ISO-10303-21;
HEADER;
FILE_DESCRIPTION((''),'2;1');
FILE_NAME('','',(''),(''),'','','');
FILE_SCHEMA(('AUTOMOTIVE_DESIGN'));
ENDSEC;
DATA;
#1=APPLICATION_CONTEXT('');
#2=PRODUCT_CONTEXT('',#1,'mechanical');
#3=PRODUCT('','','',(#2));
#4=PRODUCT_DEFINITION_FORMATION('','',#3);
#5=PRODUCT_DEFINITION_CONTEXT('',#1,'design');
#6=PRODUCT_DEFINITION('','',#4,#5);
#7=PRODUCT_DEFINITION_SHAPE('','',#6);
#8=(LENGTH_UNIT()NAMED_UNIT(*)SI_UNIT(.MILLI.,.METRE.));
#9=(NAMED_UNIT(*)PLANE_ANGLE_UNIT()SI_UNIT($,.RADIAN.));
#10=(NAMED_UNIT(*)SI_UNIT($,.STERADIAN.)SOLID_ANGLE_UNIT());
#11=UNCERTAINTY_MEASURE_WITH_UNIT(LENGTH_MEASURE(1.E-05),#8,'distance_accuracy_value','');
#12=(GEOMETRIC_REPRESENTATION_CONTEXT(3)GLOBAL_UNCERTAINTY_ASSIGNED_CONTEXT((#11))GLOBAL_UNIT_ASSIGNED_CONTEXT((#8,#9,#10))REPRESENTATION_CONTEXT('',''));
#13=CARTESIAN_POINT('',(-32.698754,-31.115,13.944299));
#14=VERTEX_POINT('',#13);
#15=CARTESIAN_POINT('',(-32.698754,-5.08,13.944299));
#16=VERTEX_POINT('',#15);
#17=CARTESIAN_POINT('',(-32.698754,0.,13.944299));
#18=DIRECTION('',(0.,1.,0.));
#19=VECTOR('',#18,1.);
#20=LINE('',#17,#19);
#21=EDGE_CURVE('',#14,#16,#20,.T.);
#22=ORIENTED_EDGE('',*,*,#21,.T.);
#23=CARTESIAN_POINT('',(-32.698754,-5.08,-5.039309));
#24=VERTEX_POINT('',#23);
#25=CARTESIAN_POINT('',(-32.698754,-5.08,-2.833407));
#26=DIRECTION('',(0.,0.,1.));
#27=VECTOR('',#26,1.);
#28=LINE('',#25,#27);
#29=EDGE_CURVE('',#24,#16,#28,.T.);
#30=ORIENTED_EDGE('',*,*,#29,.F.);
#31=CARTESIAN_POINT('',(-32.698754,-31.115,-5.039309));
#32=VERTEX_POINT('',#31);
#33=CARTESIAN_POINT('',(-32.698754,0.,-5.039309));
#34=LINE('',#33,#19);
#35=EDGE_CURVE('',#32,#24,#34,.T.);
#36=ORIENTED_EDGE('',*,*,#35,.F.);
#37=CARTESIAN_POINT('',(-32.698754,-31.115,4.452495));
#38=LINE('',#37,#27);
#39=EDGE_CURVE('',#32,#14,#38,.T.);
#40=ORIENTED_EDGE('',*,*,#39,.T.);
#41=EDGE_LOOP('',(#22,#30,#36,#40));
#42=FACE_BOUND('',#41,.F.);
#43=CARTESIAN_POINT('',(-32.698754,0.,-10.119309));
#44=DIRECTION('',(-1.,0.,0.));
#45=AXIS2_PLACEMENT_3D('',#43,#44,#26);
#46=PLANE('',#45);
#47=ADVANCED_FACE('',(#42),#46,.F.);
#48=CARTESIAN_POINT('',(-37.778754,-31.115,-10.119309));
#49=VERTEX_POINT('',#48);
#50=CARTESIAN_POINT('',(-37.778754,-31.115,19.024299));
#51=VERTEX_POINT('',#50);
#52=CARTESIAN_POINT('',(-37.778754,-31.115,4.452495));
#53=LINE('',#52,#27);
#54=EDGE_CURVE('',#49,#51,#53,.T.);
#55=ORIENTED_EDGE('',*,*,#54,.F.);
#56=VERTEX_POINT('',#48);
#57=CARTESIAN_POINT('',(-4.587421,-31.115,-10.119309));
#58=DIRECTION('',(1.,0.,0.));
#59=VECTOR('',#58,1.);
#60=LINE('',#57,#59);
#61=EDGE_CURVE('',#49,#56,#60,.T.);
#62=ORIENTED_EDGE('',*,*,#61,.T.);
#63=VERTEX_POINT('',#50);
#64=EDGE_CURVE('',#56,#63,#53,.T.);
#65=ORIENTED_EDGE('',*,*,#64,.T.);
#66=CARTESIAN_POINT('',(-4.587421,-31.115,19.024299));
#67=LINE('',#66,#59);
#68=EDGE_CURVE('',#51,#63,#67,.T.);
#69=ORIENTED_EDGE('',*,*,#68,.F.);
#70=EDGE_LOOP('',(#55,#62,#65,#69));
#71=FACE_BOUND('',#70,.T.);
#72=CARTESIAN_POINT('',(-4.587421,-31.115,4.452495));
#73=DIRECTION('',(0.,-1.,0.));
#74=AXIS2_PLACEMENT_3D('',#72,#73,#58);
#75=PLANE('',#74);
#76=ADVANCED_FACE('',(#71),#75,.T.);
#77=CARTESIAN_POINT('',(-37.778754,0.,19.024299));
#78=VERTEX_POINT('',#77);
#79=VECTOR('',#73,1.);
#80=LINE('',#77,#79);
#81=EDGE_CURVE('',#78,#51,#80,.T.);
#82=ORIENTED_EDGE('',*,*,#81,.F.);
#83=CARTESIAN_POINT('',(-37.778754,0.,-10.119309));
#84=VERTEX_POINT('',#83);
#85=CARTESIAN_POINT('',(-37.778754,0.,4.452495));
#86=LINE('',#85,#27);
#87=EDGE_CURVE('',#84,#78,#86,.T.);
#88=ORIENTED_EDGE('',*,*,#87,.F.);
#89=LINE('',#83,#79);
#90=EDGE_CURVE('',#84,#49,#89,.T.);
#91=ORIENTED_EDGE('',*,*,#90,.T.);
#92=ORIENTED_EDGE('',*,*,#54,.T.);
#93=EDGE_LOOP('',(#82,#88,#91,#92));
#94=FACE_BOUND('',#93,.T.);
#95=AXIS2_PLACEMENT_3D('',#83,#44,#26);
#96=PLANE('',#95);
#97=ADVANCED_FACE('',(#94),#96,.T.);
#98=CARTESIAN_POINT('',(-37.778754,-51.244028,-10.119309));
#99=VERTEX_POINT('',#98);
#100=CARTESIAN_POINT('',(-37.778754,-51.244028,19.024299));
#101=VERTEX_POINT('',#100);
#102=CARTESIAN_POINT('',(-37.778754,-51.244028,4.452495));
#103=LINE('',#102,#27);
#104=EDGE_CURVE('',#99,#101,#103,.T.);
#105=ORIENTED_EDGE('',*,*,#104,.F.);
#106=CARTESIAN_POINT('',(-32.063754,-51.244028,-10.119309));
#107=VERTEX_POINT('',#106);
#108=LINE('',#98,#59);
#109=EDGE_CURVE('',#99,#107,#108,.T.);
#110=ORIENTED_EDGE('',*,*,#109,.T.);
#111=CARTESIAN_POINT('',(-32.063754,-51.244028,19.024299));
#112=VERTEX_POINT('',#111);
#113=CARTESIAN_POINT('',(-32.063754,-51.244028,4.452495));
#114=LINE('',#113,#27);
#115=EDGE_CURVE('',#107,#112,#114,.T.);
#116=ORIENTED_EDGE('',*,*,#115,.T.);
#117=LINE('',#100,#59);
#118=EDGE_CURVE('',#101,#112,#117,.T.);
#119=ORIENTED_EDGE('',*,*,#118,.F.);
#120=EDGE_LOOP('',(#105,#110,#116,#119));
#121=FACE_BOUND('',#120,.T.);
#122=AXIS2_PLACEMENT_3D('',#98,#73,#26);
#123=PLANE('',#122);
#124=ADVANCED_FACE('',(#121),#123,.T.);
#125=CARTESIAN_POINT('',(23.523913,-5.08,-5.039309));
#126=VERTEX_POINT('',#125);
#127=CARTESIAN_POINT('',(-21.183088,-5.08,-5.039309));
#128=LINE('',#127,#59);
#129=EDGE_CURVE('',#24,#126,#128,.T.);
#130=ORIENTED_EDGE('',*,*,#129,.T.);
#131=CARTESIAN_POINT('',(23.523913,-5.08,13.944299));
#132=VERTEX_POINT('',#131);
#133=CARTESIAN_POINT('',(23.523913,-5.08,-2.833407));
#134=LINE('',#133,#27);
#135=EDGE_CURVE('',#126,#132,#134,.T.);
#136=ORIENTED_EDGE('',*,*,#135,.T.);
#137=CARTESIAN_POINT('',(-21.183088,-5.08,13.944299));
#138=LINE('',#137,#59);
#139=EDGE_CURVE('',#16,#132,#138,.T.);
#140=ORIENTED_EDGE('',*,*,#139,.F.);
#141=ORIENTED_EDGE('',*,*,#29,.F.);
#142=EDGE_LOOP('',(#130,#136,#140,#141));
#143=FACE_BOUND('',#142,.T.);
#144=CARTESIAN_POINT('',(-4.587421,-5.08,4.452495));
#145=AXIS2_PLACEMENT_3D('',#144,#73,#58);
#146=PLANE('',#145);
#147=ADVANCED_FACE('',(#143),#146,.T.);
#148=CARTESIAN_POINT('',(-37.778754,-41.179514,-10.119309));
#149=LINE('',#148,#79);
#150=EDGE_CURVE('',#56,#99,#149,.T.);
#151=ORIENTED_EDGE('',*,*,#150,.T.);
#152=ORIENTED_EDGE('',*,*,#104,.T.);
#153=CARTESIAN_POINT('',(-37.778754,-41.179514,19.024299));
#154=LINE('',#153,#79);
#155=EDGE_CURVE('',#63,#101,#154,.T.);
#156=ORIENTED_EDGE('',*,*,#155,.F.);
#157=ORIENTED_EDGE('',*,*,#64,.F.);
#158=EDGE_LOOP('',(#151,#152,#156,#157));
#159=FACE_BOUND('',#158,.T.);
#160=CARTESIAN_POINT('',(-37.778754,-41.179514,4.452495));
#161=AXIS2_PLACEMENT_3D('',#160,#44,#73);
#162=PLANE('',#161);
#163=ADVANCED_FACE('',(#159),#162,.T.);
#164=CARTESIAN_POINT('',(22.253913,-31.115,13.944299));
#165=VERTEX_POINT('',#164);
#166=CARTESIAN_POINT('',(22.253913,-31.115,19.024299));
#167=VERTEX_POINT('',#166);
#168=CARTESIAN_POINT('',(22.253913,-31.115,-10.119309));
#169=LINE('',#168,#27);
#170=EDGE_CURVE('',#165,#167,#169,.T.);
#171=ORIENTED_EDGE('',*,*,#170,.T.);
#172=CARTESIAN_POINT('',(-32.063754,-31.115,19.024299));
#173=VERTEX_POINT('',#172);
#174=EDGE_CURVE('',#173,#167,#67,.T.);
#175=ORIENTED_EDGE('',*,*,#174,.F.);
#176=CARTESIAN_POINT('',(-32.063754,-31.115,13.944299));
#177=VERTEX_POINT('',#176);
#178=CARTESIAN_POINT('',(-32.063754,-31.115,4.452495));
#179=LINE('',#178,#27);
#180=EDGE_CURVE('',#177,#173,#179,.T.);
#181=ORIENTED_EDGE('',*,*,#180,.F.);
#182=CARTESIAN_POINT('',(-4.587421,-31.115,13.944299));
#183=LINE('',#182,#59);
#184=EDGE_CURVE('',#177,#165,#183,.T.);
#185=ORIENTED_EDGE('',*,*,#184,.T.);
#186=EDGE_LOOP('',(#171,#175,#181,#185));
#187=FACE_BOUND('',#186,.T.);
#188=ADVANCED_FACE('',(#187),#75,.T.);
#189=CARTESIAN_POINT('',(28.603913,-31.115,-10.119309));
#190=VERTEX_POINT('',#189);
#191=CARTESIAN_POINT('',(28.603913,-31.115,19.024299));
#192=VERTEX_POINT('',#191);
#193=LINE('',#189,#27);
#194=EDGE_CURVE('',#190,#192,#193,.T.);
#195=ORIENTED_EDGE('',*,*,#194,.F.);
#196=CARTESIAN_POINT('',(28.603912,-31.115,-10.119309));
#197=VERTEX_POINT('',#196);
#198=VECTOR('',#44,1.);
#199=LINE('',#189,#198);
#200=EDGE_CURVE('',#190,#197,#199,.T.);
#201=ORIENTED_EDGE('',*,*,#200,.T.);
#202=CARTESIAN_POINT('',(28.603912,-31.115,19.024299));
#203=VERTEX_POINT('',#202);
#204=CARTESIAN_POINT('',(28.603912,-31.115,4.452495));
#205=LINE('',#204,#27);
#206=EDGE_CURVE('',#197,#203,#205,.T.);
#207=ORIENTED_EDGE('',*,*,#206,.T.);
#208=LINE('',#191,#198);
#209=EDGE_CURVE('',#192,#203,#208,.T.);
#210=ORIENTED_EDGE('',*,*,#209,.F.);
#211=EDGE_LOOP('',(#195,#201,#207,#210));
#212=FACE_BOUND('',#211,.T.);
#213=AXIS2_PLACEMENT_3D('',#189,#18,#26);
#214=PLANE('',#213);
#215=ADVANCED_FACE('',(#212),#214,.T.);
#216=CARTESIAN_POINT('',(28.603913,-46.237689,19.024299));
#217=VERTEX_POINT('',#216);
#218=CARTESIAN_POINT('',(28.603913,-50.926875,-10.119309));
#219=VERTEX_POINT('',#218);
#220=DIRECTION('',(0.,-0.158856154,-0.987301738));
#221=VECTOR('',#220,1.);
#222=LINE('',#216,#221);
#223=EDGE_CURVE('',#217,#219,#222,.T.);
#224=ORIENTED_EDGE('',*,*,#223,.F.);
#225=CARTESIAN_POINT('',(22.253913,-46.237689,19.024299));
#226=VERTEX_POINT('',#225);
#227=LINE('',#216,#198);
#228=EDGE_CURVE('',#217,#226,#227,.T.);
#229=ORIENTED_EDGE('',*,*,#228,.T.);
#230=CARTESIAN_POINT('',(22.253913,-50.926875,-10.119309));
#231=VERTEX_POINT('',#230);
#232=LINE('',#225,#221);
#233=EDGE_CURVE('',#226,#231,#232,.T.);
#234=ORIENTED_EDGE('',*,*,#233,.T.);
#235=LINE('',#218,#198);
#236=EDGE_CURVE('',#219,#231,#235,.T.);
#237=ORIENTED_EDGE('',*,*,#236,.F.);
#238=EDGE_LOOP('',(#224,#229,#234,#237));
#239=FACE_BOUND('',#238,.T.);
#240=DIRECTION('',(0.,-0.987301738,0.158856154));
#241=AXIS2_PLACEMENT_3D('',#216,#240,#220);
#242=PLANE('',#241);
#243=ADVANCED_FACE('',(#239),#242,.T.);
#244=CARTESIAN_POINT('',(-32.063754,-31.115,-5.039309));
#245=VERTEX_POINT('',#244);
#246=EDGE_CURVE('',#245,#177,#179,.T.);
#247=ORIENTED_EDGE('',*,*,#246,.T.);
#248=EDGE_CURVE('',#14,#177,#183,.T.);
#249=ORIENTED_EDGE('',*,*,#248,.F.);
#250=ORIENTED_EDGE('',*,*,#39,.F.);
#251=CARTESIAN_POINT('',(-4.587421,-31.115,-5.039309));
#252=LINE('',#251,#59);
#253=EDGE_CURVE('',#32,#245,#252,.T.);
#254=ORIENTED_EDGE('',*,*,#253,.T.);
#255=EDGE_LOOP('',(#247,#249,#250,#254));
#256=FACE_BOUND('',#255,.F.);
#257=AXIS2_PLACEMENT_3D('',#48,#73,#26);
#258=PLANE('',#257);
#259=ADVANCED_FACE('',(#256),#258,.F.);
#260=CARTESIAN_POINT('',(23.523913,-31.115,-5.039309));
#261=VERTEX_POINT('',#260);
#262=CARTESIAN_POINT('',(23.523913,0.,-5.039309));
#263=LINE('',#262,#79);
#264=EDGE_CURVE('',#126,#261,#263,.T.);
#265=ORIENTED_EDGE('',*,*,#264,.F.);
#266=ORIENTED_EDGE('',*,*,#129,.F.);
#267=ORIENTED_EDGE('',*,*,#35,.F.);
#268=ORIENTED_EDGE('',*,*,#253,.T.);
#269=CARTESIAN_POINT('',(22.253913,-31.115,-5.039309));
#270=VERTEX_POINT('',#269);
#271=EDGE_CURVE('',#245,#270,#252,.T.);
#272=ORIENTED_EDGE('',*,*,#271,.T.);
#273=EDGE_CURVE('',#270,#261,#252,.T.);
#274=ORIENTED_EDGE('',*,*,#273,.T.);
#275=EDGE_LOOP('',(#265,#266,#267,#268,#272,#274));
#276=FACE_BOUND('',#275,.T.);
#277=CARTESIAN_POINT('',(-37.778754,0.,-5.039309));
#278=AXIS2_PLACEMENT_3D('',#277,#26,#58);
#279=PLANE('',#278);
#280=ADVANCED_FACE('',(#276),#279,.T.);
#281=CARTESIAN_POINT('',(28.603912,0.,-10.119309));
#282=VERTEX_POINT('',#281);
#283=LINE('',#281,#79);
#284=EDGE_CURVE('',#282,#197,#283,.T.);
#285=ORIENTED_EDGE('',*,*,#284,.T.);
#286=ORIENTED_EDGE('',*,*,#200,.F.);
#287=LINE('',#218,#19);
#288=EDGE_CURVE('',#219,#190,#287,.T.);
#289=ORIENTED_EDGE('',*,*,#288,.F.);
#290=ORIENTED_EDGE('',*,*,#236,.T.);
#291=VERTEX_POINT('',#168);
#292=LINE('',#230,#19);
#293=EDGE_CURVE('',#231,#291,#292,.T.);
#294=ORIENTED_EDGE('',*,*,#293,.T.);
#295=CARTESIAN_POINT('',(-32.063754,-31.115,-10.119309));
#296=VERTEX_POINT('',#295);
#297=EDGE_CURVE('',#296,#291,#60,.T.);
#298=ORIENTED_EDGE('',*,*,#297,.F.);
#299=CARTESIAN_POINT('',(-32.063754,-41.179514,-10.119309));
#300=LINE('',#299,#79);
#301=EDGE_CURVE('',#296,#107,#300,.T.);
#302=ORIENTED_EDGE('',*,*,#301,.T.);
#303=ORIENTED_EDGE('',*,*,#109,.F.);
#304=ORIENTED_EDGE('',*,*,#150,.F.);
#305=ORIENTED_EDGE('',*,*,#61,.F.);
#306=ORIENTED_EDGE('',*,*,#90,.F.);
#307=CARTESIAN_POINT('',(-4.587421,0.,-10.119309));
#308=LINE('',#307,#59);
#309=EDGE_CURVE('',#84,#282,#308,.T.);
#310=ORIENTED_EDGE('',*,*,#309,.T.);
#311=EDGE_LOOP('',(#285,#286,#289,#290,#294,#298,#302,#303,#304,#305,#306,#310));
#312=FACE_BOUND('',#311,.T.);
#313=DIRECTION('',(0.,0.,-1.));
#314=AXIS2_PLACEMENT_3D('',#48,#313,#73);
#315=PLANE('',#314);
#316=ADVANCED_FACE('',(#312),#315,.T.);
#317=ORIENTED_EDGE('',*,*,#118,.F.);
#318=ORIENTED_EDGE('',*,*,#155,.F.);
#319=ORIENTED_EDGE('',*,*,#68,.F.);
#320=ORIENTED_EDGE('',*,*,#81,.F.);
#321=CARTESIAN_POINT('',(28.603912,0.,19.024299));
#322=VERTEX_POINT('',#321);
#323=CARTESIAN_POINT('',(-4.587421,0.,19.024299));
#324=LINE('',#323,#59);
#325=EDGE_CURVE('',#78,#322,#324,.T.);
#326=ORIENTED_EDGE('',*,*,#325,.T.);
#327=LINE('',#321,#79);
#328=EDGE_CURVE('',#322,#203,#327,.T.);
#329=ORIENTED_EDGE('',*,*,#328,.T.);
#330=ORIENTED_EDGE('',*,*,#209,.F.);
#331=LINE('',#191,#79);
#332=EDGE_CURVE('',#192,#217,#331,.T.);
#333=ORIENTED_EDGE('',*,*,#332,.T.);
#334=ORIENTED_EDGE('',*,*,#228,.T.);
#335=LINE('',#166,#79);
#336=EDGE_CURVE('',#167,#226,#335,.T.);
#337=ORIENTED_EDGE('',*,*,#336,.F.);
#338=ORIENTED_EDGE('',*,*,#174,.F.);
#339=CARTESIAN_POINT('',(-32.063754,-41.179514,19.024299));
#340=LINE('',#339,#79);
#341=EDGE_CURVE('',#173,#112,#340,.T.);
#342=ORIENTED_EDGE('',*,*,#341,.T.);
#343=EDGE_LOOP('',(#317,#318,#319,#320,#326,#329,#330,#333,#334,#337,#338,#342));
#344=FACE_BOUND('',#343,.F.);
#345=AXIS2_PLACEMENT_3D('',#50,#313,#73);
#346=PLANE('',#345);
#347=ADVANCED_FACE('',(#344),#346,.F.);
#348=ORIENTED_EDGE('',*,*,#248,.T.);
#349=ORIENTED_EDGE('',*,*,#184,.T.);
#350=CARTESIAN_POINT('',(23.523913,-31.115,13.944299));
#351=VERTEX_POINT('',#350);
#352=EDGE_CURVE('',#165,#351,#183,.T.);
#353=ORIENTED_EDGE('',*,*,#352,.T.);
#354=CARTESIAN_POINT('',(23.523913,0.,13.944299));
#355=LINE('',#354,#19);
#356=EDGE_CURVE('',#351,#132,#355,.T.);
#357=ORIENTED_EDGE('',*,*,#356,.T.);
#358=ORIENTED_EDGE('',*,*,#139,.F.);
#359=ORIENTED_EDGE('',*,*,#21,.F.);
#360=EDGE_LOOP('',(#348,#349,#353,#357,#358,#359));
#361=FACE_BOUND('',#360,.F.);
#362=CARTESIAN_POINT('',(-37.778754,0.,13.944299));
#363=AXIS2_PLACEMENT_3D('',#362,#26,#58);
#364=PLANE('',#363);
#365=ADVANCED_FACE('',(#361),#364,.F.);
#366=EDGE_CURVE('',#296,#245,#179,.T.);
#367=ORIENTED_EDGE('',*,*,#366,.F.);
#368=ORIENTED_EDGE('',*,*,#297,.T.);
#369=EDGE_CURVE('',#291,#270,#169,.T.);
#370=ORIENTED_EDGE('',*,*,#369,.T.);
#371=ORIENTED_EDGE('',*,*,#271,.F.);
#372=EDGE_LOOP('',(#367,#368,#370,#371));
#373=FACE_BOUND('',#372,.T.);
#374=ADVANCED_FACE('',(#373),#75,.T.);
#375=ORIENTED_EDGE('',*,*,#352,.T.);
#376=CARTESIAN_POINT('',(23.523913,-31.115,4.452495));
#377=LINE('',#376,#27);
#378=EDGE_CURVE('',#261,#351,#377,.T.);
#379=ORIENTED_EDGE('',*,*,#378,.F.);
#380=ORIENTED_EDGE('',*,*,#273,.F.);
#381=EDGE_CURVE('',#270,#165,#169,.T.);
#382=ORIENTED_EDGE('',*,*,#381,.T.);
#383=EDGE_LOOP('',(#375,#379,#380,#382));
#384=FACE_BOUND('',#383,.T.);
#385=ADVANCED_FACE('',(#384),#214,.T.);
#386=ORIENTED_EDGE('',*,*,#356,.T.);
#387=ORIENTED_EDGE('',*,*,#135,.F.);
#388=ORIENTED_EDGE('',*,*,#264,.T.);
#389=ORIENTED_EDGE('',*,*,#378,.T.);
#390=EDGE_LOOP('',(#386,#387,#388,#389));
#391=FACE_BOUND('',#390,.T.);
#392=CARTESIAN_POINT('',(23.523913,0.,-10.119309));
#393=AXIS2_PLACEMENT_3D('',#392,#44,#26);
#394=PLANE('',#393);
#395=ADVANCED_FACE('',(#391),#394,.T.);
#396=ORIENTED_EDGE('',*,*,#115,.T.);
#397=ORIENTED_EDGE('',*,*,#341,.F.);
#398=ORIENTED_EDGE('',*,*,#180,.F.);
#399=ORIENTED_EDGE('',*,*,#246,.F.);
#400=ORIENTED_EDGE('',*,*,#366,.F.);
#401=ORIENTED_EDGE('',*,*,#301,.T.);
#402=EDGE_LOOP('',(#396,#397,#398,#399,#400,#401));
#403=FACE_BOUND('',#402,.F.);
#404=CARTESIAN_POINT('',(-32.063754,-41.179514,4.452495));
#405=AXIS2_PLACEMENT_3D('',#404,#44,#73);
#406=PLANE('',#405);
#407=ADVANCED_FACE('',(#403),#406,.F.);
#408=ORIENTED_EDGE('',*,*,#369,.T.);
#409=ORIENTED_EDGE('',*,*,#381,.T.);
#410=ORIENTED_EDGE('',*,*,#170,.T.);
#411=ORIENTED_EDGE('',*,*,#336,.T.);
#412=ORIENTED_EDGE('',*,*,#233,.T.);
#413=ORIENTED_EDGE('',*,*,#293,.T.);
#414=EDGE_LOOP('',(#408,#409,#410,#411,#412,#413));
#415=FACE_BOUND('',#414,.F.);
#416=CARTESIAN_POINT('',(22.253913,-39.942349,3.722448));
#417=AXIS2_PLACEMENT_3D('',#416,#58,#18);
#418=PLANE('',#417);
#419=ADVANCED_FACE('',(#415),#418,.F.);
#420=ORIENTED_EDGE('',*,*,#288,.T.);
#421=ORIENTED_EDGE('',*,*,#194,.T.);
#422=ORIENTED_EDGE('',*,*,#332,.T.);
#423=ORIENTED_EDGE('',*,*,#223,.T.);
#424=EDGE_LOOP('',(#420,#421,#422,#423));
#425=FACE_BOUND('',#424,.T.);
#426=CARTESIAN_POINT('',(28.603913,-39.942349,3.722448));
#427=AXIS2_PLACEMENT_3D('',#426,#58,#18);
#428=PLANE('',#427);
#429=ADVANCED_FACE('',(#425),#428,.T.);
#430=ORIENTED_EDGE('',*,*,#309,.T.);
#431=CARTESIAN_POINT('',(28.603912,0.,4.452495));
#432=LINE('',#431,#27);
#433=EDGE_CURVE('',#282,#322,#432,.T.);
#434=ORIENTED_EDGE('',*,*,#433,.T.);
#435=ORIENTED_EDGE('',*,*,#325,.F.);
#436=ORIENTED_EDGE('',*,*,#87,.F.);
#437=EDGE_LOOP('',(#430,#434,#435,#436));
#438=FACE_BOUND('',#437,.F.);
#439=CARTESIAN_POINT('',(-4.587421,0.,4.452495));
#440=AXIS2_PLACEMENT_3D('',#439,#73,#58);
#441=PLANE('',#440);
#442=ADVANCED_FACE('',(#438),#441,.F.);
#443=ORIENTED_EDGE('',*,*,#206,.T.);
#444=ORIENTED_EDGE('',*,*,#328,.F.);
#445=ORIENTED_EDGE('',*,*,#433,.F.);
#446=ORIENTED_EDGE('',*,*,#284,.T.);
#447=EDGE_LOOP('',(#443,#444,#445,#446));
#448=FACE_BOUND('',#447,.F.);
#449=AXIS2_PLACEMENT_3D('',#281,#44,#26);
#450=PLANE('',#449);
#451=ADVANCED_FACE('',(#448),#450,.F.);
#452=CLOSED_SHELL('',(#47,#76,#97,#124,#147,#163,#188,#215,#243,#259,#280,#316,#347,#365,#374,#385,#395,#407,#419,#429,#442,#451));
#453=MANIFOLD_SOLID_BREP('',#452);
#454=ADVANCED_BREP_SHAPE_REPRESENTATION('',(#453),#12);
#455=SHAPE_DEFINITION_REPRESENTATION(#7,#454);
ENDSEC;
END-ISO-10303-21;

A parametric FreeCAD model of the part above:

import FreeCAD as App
import Part
import Sketcher

V = App.Vector
Q = App.Units.Quantity


def faces_at(feature, points):
    """Names of the faces that lie closest to the given points."""
    faces = feature.Shape.Faces
    near = lambda p: min(range(len(faces)), key=lambda i: faces[i].distToShape(Part.Vertex(*p))[0])
    return sorted({f"Face{near(p) + 1}" for p in points})

doc = App.newDocument("Part")
body = doc.addObject("PartDesign::Body", "Body")

# Sketch on XZ plane
sketch1 = body.newObject("Sketcher::SketchObject", "Sketch")
sketch1.AttachmentSupport = (doc.getObject("XZ_Plane"), [""])
sketch1.MapMode = "FlatFace"
sketch1.addGeometry([
    Part.LineSegment(V(-38, 19, 0), V(-38, -10, 0)),
    Part.LineSegment(V(-38, -10, 0), V(29, -10, 0)),
    Part.LineSegment(V(29, -10, 0), V(29, 19, 0)),
    Part.LineSegment(V(29, 19, 0), V(-38, 19, 0)),
], False)
sketch1.addConstraint([
    Sketcher.Constraint("Coincident", 0, 2, 1, 1),
    Sketcher.Constraint("Coincident", 1, 2, 2, 1),
    Sketcher.Constraint("Coincident", 2, 2, 3, 1),
    Sketcher.Constraint("Coincident", 3, 2, 0, 1),
    Sketcher.Constraint("Vertical", 0),
    Sketcher.Constraint("Horizontal", 1),
    Sketcher.Constraint("Vertical", 2),
    Sketcher.Constraint("Horizontal", 3),
    Sketcher.Constraint("DistanceY", 0, 2, 0, 1, Q("29.143608 mm")),
    Sketcher.Constraint("DistanceY", -1, 1, 2, 2, Q("19.024299 mm")),
    Sketcher.Constraint("DistanceX", 1, 1, 1, 2, Q("66.382667 mm")),
    Sketcher.Constraint("DistanceX", 0, 2, -1, 1, Q("37.778754 mm")),
])
pad1 = body.newObject("PartDesign::Pad", "Pad")
pad1.Profile = sketch1
pad1.Length = Q("1.225 in")
doc.recompute()

thickness = body.newObject("PartDesign::Thickness", "Thickness")
thickness.Base = (pad1, faces_at(pad1, [(-4.587, -31.115, 4.452)]))
thickness.Value = Q("0.2 in")
thickness.Reversed = True
thickness.Join = "Arc"

# Sketch on YZ plane
sketch2 = body.newObject("Sketcher::SketchObject", "Sketch001")
sketch2.AttachmentSupport = (doc.getObject("YZ_Plane"), [""])
sketch2.MapMode = "FlatFace"
sketch2.AttachmentOffset = App.Placement(V(0, 0, 28.603913), App.Rotation())
sketch2.addGeometry([
    Part.LineSegment(V(-51, -10, 0), V(-31, -10, 0)),
    Part.LineSegment(V(-31, -10, 0), V(-31, 19, 0)),
    Part.LineSegment(V(-31, 19, 0), V(-46, 19, 0)),
    Part.LineSegment(V(-46, 19, 0), V(-51, -10, 0)),
], False)
sketch2.addConstraint([
    Sketcher.Constraint("Coincident", 0, 2, 1, 1),
    Sketcher.Constraint("Coincident", 1, 2, 2, 1),
    Sketcher.Constraint("Coincident", 2, 2, 3, 1),
    Sketcher.Constraint("Coincident", 3, 2, 0, 1),
    Sketcher.Constraint("Horizontal", 0),
    Sketcher.Constraint("Vertical", 1),
    Sketcher.Constraint("Horizontal", 2),
    Sketcher.Constraint("DistanceX", 0, 2, -1, 1, Q("1.225 in")),
    Sketcher.Constraint("DistanceX", 2, 2, 2, 1, Q("15.122689 mm")),
    Sketcher.Constraint("DistanceY", 1, 1, 1, 2, Q("29.143608 mm")),
    Sketcher.Constraint("DistanceY", -1, 1, 1, 2, Q("19.024299 mm")),
    Sketcher.Constraint("Distance", 3, Q("29.518441 mm")),
])
pad2 = body.newObject("PartDesign::Pad", "Pad001")
pad2.Profile = sketch2
pad2.Length = Q("0.25 in")
pad2.Reversed = True

# Sketch on YZ plane
sketch3 = body.newObject("Sketcher::SketchObject", "Sketch002")
sketch3.AttachmentSupport = (doc.getObject("YZ_Plane"), [""])
sketch3.MapMode = "FlatFace"
sketch3.AttachmentOffset = App.Placement(V(0, 0, -37.778754), App.Rotation())
sketch3.addGeometry([
    Part.LineSegment(V(-31, 19, 0), V(-31, -10, 0)),
    Part.LineSegment(V(-31, -10, 0), V(-51, -10, 0)),
    Part.LineSegment(V(-51, -10, 0), V(-51, 19, 0)),
    Part.LineSegment(V(-51, 19, 0), V(-31, 19, 0)),
], False)
sketch3.addConstraint([
    Sketcher.Constraint("Coincident", 0, 2, 1, 1),
    Sketcher.Constraint("Coincident", 1, 2, 2, 1),
    Sketcher.Constraint("Coincident", 2, 2, 3, 1),
    Sketcher.Constraint("Coincident", 3, 2, 0, 1),
    Sketcher.Constraint("Vertical", 0),
    Sketcher.Constraint("Horizontal", 1),
    Sketcher.Constraint("Vertical", 2),
    Sketcher.Constraint("Horizontal", 3),
    Sketcher.Constraint("DistanceX", 0, 2, -1, 1, Q("1.225 in")),
    Sketcher.Constraint("DistanceX", 1, 2, 1, 1, Q("20.129028 mm")),
    Sketcher.Constraint("DistanceY", 0, 2, 0, 1, Q("29.143608 mm")),
    Sketcher.Constraint("DistanceY", -1, 1, 2, 2, Q("19.024299 mm")),
])
pad3 = body.newObject("PartDesign::Pad", "Pad002")
pad3.Profile = sketch3
pad3.Length = Q("0.225 in")

doc.recompute()
